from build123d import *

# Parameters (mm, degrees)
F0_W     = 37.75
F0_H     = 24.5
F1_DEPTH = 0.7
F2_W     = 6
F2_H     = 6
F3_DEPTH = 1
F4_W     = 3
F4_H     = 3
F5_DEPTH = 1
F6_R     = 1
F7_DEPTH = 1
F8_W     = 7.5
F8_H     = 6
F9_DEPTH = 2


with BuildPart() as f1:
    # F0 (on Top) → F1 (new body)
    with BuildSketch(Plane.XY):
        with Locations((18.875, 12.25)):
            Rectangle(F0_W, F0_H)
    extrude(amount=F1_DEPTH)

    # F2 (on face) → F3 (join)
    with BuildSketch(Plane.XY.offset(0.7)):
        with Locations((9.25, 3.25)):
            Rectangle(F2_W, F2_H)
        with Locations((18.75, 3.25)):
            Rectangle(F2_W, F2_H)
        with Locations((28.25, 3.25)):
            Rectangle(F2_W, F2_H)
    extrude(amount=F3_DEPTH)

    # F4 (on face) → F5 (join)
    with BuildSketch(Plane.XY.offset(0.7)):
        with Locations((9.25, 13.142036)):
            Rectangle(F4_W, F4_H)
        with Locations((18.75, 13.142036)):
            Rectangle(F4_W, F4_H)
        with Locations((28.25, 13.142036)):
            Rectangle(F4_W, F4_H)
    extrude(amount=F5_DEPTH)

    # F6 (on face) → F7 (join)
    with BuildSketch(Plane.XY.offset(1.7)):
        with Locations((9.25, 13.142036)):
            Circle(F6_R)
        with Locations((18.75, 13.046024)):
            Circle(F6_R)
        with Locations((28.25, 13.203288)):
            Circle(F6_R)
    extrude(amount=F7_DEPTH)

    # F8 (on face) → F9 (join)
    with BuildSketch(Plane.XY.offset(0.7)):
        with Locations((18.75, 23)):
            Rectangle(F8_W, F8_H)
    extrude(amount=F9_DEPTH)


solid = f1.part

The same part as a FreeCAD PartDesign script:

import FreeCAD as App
import Part
import Sketcher

doc = App.newDocument("Part")
body = doc.addObject("PartDesign::Body", "Body")

sketch1 = body.newObject("Sketcher::SketchObject", "Sketch")
sketch1.AttachmentSupport = (doc.getObject("XY_Plane"), [""])
sketch1.MapMode = "FlatFace"
sketch1.addGeometry([
    Part.LineSegment(App.Vector(0, 24.5, 0), App.Vector(0, 0, 0)),
    Part.LineSegment(App.Vector(0, 0, 0), App.Vector(37.75, 0, 0)),
    Part.LineSegment(App.Vector(37.75, 0, 0), App.Vector(37.75, 24.5, 0)),
    Part.LineSegment(App.Vector(37.75, 24.5, 0), App.Vector(0, 24.5, 0)),
], False)
sketch1.addConstraint([
    Sketcher.Constraint("Coincident", 0, 2, 1, 1),
    Sketcher.Constraint("Coincident", 1, 2, 2, 1),
    Sketcher.Constraint("Coincident", 2, 2, 3, 1),
    Sketcher.Constraint("Coincident", 3, 2, 0, 1),
    Sketcher.Constraint("Vertical", 0),
    Sketcher.Constraint("Horizontal", 1),
    Sketcher.Constraint("Vertical", 2),
    Sketcher.Constraint("Horizontal", 3),
    Sketcher.Constraint("Coincident", 0, 2, -1, 1),
    Sketcher.Constraint("DistanceY", 0, 2, 0, 1, 24.5),
    Sketcher.Constraint("DistanceX", 1, 1, 1, 2, 37.75),
])
pad1 = body.newObject("PartDesign::Pad", "Pad")
pad1.Profile = sketch1
pad1.Length = 0.7

sketch2 = body.newObject("Sketcher::SketchObject", "Sketch001")
sketch2.AttachmentSupport = (doc.getObject("XY_Plane"), [""])
sketch2.MapMode = "FlatFace"
sketch2.AttachmentOffset = App.Placement(App.Vector(0, 0, 0.7), App.Rotation())
sketch2.addGeometry([
    Part.LineSegment(App.Vector(6.25, 6.25, 0), App.Vector(6.25, 0.25, 0)),
    Part.LineSegment(App.Vector(6.25, 0.25, 0), App.Vector(12.25, 0.25, 0)),
    Part.LineSegment(App.Vector(12.25, 0.25, 0), App.Vector(12.25, 6.25, 0)),
    Part.LineSegment(App.Vector(12.25, 6.25, 0), App.Vector(6.25, 6.25, 0)),
    Part.LineSegment(App.Vector(15.75, 6.25, 0), App.Vector(15.75, 0.25, 0)),
    Part.LineSegment(App.Vector(15.75, 0.25, 0), App.Vector(21.75, 0.25, 0)),
    Part.LineSegment(App.Vector(21.75, 0.25, 0), App.Vector(21.75, 6.25, 0)),
    Part.LineSegment(App.Vector(21.75, 6.25, 0), App.Vector(15.75, 6.25, 0)),
    Part.LineSegment(App.Vector(25.25, 6.25, 0), App.Vector(25.25, 0.25, 0)),
    Part.LineSegment(App.Vector(25.25, 0.25, 0), App.Vector(31.25, 0.25, 0)),
    Part.LineSegment(App.Vector(31.25, 0.25, 0), App.Vector(31.25, 6.25, 0)),
    Part.LineSegment(App.Vector(31.25, 6.25, 0), App.Vector(25.25, 6.25, 0)),
], False)
sketch2.addConstraint([
    Sketcher.Constraint("Coincident", 0, 2, 1, 1),
    Sketcher.Constraint("Coincident", 1, 2, 2, 1),
    Sketcher.Constraint("Coincident", 2, 2, 3, 1),
    Sketcher.Constraint("Coincident", 3, 2, 0, 1),
    Sketcher.Constraint("Coincident", 4, 2, 5, 1),
    Sketcher.Constraint("Coincident", 5, 2, 6, 1),
    Sketcher.Constraint("Coincident", 6, 2, 7, 1),
    Sketcher.Constraint("Coincident", 7, 2, 4, 1),
    Sketcher.Constraint("Coincident", 8, 2, 9, 1),
    Sketcher.Constraint("Coincident", 9, 2, 10, 1),
    Sketcher.Constraint("Coincident", 10, 2, 11, 1),
    Sketcher.Constraint("Coincident", 11, 2, 8, 1),
    Sketcher.Constraint("Vertical", 0),
    Sketcher.Constraint("Horizontal", 1),
    Sketcher.Constraint("Vertical", 2),
    Sketcher.Constraint("Horizontal", 3),
    Sketcher.Constraint("Vertical", 4),
    Sketcher.Constraint("Horizontal", 5),
    Sketcher.Constraint("Vertical", 6),
    Sketcher.Constraint("Horizontal", 7),
    Sketcher.Constraint("Vertical", 8),
    Sketcher.Constraint("Horizontal", 9),
    Sketcher.Constraint("Vertical", 10),
    Sketcher.Constraint("Horizontal", 11),
    Sketcher.Constraint("Horizontal", 1, 2, 4, 2),
    Sketcher.Constraint("Horizontal", 3, 2, 6, 2),
    Sketcher.Constraint("Horizontal", 5, 2, 8, 2),
    Sketcher.Constraint("Horizontal", 7, 2, 10, 2),
    Sketcher.Constraint("Equal", 3, 5),
    Sketcher.Constraint("Equal", 7, 9),
    Sketcher.Constraint("Equal", 11, 0),
    Sketcher.Constraint("DistanceX", 1, 1, 1, 2, 6.0),
    Sketcher.Constraint("DistanceX", 1, 2, 8, 2, 13.0),
    Sketcher.Constraint("DistanceX", 1, 2, 4, 2, 3.5),
    Sketcher.Constraint("DistanceX", -1, 1, 0, 2, 6.25),
    Sketcher.Constraint("DistanceY", -1, 1, 0, 2, 0.25),
])
pad2 = body.newObject("PartDesign::Pad", "Pad001")
pad2.Profile = sketch2
pad2.Length = 1

sketch3 = body.newObject("Sketcher::SketchObject", "Sketch002")
sketch3.AttachmentSupport = (doc.getObject("XY_Plane"), [""])
sketch3.MapMode = "FlatFace"
sketch3.AttachmentOffset = App.Placement(App.Vector(0, 0, 0.7), App.Rotation())
sketch3.addGeometry([
    Part.LineSegment(App.Vector(7.75, 14.642036, 0), App.Vector(7.75, 11.642036, 0)),
    Part.LineSegment(App.Vector(7.75, 11.642036, 0), App.Vector(10.75, 11.642036, 0)),
    Part.LineSegment(App.Vector(10.75, 11.642036, 0), App.Vector(10.75, 14.642036, 0)),
    Part.LineSegment(App.Vector(10.75, 14.642036, 0), App.Vector(7.75, 14.642036, 0)),
    Part.LineSegment(App.Vector(17.25, 14.642036, 0), App.Vector(17.25, 11.642036, 0)),
    Part.LineSegment(App.Vector(17.25, 11.642036, 0), App.Vector(20.25, 11.642036, 0)),
    Part.LineSegment(App.Vector(20.25, 11.642036, 0), App.Vector(20.25, 14.642036, 0)),
    Part.LineSegment(App.Vector(20.25, 14.642036, 0), App.Vector(17.25, 14.642036, 0)),
    Part.LineSegment(App.Vector(26.75, 14.642036, 0), App.Vector(26.75, 11.642036, 0)),
    Part.LineSegment(App.Vector(26.75, 11.642036, 0), App.Vector(29.75, 11.642036, 0)),
    Part.LineSegment(App.Vector(29.75, 11.642036, 0), App.Vector(29.75, 14.642036, 0)),
    Part.LineSegment(App.Vector(29.75, 14.642036, 0), App.Vector(26.75, 14.642036, 0)),
], False)
sketch3.addConstraint([
    Sketcher.Constraint("Coincident", 0, 2, 1, 1),
    Sketcher.Constraint("Coincident", 1, 2, 2, 1),
    Sketcher.Constraint("Coincident", 2, 2, 3, 1),
    Sketcher.Constraint("Coincident", 3, 2, 0, 1),
    Sketcher.Constraint("Coincident", 4, 2, 5, 1),
    Sketcher.Constraint("Coincident", 5, 2, 6, 1),
    Sketcher.Constraint("Coincident", 6, 2, 7, 1),
    Sketcher.Constraint("Coincident", 7, 2, 4, 1),
    Sketcher.Constraint("Coincident", 8, 2, 9, 1),
    Sketcher.Constraint("Coincident", 9, 2, 10, 1),
    Sketcher.Constraint("Coincident", 10, 2, 11, 1),
    Sketcher.Constraint("Coincident", 11, 2, 8, 1),
    Sketcher.Constraint("Vertical", 0),
    Sketcher.Constraint("Horizontal", 1),
    Sketcher.Constraint("Vertical", 2),
    Sketcher.Constraint("Horizontal", 3),
    Sketcher.Constraint("Vertical", 4),
    Sketcher.Constraint("Horizontal", 5),
    Sketcher.Constraint("Vertical", 6),
    Sketcher.Constraint("Horizontal", 7),
    Sketcher.Constraint("Vertical", 8),
    Sketcher.Constraint("Horizontal", 9),
    Sketcher.Constraint("Vertical", 10),
    Sketcher.Constraint("Horizontal", 11),
    Sketcher.Constraint("Horizontal", 1, 2, 4, 2),
    Sketcher.Constraint("Horizontal", 3, 2, 6, 2),
    Sketcher.Constraint("Horizontal", 5, 2, 8, 2),
    Sketcher.Constraint("Horizontal", 7, 2, 10, 2),
    Sketcher.Constraint("Equal", 3, 5),
    Sketcher.Constraint("Equal", 7, 9),
    Sketcher.Constraint("Equal", 11, 0),
    Sketcher.Constraint("DistanceX", 1, 1, 1, 2, 3.0),
    Sketcher.Constraint("DistanceX", 1, 2, 8, 2, 16.0),
    Sketcher.Constraint("DistanceX", 1, 2, 4, 2, 6.5),
    Sketcher.Constraint("DistanceX", -1, 1, 0, 2, 7.75),
    Sketcher.Constraint("DistanceY", -1, 1, 0, 2, 11.642036),
])
pad3 = body.newObject("PartDesign::Pad", "Pad002")
pad3.Profile = sketch3
pad3.Length = 1

sketch4 = body.newObject("Sketcher::SketchObject", "Sketch003")
sketch4.AttachmentSupport = (doc.getObject("XY_Plane"), [""])
sketch4.MapMode = "FlatFace"
sketch4.AttachmentOffset = App.Placement(App.Vector(0, 0, 1.7), App.Rotation())
sketch4.addGeometry([
    Part.Circle(App.Vector(9.25, 13.142036, 0), App.Vector(0, 0, 1), 1),
    Part.Circle(App.Vector(18.75, 13.046024, 0), App.Vector(0, 0, 1), 1),
    Part.Circle(App.Vector(28.25, 13.203288, 0), App.Vector(0, 0, 1), 1),
], False)
sketch4.addConstraint([
    Sketcher.Constraint("Equal", 0, 1),
    Sketcher.Constraint("Equal", 1, 2),
    Sketcher.Constraint("Diameter", 0, 2.0),
    Sketcher.Constraint("DistanceX", 0, 3, 2, 3, 19.0),
    Sketcher.Constraint("DistanceX", 0, 3, 1, 3, 9.5),
    Sketcher.Constraint("DistanceX", -1, 1, 0, 3, 9.25),
    Sketcher.Constraint("DistanceY", 1, 3, 0, 3, 0.096012),
    Sketcher.Constraint("DistanceY", -1, 1, 0, 3, 13.142036),
    Sketcher.Constraint("DistanceY", -1, 1, 2, 3, 13.203288),
])
pad4 = body.newObject("PartDesign::Pad", "Pad003")
pad4.Profile = sketch4
pad4.Length = 1

sketch5 = body.newObject("Sketcher::SketchObject", "Sketch004")
sketch5.AttachmentSupport = (doc.getObject("XY_Plane"), [""])
sketch5.MapMode = "FlatFace"
sketch5.AttachmentOffset = App.Placement(App.Vector(0, 0, 0.7), App.Rotation())
sketch5.addGeometry([
    Part.LineSegment(App.Vector(15, 26, 0), App.Vector(15, 20, 0)),
    Part.LineSegment(App.Vector(15, 20, 0), App.Vector(22.5, 20, 0)),
    Part.LineSegment(App.Vector(22.5, 20, 0), App.Vector(22.5, 26, 0)),
    Part.LineSegment(App.Vector(22.5, 26, 0), App.Vector(15, 26, 0)),
], False)
sketch5.addConstraint([
    Sketcher.Constraint("Coincident", 0, 2, 1, 1),
    Sketcher.Constraint("Coincident", 1, 2, 2, 1),
    Sketcher.Constraint("Coincident", 2, 2, 3, 1),
    Sketcher.Constraint("Coincident", 3, 2, 0, 1),
    Sketcher.Constraint("Vertical", 0),
    Sketcher.Constraint("Horizontal", 1),
    Sketcher.Constraint("Vertical", 2),
    Sketcher.Constraint("Horizontal", 3),
    Sketcher.Constraint("DistanceY", 0, 2, 0, 1, 6.0),
    Sketcher.Constraint("DistanceX", 1, 1, 1, 2, 7.5),
    Sketcher.Constraint("DistanceX", -1, 1, 0, 2, 15.0),
    Sketcher.Constraint("DistanceY", -1, 1, 0, 2, 20.0),
])
pad5 = body.newObject("PartDesign::Pad", "Pad004")
pad5.Profile = sketch5
pad5.Length = 2

doc.recompute()
